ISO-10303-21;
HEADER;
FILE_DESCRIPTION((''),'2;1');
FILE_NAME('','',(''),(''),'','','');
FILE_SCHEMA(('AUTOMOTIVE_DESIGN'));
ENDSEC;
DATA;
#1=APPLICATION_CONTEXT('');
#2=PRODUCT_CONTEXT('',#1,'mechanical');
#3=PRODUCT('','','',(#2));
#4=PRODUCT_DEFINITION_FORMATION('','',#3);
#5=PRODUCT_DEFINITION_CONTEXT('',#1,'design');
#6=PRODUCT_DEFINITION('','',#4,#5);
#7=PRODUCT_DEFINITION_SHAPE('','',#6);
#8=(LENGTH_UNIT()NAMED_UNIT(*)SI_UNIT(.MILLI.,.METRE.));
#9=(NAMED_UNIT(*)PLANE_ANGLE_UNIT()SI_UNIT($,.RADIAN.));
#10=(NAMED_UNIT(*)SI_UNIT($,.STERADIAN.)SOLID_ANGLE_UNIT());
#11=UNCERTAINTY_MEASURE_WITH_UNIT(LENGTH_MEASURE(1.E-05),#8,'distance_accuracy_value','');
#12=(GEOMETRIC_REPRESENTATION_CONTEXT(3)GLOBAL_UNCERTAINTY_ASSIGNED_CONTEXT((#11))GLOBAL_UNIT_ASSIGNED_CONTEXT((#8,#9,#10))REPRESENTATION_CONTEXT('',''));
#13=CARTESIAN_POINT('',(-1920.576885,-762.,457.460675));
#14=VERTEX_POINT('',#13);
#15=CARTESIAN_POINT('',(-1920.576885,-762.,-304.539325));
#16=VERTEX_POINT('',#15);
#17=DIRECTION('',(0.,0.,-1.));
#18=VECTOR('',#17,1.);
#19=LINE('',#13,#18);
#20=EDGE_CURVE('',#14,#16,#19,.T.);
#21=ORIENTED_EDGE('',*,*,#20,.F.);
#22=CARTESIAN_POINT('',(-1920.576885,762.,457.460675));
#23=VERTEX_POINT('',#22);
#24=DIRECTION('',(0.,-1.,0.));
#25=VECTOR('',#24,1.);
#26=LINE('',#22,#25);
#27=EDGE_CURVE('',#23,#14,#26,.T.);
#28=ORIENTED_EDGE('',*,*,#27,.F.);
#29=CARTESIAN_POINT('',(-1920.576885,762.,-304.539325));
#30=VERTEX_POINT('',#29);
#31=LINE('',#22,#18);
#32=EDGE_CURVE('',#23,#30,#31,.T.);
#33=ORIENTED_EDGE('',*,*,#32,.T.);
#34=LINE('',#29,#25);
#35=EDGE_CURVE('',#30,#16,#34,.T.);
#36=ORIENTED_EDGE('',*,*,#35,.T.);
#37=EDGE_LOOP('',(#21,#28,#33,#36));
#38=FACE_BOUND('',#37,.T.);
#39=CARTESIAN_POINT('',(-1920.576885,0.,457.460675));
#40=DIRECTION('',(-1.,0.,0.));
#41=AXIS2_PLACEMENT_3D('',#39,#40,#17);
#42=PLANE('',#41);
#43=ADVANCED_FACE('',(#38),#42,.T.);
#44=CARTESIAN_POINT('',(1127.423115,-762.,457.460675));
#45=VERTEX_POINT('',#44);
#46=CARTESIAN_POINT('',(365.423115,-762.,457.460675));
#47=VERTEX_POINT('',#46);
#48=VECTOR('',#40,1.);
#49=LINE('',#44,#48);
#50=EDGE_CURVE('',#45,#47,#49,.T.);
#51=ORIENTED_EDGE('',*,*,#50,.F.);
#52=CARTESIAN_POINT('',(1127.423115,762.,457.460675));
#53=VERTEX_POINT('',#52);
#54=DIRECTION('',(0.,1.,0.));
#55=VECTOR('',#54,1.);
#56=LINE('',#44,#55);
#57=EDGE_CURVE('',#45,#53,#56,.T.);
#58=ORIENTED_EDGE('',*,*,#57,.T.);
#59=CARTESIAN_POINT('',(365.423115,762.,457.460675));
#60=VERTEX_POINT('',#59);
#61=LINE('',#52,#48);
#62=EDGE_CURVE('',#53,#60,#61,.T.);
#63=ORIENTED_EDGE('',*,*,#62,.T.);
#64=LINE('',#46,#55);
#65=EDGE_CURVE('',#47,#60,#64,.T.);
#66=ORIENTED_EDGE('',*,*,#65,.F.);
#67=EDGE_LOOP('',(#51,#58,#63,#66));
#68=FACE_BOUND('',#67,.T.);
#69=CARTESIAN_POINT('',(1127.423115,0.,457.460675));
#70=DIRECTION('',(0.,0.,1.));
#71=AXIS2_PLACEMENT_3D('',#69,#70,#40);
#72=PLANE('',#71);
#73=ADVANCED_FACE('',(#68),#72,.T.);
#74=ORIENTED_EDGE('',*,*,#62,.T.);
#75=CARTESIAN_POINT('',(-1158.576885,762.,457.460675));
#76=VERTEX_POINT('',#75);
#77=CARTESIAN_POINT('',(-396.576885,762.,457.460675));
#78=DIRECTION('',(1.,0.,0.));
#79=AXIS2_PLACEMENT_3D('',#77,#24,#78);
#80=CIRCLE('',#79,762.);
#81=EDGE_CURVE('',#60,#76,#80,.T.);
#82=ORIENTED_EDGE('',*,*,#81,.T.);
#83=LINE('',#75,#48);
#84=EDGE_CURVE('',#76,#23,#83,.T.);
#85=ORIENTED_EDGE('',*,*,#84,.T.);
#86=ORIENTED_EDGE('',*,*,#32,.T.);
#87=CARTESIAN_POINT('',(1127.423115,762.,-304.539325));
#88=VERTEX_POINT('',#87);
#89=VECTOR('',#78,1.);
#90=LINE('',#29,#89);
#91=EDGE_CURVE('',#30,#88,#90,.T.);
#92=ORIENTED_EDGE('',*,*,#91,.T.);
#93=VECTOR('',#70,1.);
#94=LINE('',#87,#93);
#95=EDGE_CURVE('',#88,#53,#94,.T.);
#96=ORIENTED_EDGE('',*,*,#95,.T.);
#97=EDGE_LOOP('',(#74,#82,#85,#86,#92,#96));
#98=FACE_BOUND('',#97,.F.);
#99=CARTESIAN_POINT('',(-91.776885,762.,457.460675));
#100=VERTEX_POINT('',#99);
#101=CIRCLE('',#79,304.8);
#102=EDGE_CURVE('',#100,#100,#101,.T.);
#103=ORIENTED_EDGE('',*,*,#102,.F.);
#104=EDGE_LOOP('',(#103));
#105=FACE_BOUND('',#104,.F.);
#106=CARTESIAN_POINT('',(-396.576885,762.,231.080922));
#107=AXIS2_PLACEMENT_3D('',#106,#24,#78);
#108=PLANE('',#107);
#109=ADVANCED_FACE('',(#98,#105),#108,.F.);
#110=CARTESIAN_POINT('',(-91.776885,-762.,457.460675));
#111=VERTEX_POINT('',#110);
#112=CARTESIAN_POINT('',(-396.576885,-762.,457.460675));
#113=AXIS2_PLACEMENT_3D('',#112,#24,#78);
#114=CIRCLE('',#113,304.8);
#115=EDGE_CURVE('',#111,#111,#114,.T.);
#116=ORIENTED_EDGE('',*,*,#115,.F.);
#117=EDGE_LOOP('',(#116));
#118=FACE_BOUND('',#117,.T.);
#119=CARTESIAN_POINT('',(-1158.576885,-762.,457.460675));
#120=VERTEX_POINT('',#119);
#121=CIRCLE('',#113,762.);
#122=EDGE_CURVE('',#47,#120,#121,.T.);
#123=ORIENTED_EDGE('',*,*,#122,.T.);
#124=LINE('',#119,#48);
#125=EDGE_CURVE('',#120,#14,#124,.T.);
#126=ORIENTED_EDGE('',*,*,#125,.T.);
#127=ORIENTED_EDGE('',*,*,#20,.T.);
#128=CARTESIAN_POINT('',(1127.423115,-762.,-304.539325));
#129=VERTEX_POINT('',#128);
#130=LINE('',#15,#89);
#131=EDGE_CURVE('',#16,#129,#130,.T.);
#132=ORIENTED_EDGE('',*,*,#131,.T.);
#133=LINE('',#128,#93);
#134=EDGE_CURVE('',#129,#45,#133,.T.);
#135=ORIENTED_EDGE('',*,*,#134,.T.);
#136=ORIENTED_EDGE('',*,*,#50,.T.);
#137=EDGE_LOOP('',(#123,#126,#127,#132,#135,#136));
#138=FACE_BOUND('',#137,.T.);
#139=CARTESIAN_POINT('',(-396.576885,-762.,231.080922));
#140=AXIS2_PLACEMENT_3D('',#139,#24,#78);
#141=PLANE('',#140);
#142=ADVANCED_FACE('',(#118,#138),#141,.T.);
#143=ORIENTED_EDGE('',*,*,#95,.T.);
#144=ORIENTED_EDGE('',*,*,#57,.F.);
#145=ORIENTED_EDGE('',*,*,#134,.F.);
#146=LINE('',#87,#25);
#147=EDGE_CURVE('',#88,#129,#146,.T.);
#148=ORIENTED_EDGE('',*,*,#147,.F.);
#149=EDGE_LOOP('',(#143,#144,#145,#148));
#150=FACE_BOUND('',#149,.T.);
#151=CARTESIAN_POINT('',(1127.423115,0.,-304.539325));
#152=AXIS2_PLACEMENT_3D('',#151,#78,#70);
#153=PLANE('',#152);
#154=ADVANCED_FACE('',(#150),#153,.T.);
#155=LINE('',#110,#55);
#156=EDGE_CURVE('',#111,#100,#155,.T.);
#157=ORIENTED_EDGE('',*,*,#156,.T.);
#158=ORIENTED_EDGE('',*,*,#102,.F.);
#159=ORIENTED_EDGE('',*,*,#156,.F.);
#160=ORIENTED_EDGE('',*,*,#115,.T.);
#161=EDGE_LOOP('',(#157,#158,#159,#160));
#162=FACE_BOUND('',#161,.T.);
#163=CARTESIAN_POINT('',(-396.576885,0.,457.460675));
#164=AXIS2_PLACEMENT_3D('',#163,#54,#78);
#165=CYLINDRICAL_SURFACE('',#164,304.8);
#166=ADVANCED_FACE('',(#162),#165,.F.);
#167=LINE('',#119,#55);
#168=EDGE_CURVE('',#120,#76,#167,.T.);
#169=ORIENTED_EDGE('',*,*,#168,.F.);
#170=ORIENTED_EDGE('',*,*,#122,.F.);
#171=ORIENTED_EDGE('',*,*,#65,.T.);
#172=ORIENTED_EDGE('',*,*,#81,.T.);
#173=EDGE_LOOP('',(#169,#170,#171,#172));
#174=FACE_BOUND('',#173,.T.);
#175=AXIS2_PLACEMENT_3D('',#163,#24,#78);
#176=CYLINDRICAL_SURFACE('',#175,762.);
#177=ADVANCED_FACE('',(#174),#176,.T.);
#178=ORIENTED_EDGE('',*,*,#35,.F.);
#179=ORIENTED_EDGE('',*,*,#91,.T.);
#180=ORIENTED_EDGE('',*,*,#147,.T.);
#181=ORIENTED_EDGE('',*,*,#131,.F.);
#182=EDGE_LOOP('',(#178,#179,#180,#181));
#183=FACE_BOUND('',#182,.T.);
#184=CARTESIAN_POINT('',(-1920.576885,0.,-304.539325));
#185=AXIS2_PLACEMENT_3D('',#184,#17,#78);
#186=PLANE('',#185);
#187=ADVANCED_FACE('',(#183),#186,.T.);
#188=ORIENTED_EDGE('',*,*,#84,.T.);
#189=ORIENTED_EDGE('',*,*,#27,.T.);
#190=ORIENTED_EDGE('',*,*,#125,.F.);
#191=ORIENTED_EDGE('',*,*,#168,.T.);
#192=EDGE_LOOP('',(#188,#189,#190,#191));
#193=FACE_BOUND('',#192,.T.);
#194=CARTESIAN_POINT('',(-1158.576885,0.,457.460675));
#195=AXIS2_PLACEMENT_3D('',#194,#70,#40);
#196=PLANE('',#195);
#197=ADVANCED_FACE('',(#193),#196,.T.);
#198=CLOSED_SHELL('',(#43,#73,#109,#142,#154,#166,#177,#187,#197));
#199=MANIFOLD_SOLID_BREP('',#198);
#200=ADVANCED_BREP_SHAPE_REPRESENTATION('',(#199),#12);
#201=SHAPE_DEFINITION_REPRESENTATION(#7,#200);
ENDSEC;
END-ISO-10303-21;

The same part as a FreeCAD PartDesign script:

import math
import FreeCAD as App
import Part
import Sketcher
from FreeCAD import Vector
Q = App.Units.Quantity

doc = App.newDocument("Part")
body = doc.addObject("PartDesign::Body", "Body")

# Sketch on XZ plane
sketch1 = body.newObject("Sketcher::SketchObject", "Sketch")
sketch1.AttachmentSupport = (doc.getObject("XZ_Plane"), [""])
sketch1.MapMode = "FlatFace"
sketch1.addGeometry(Part.LineSegment(Vector(-1158.576885, 457.460675, 0), Vector(-1920.576885, 457.460675, 0)), False)
sketch1.addGeometry(Part.LineSegment(Vector(-1920.576885, 457.460675, 0), Vector(-1920.576885, -304.539325, 0)), False)
sketch1.addGeometry(Part.LineSegment(Vector(-1920.576885, -304.539325, 0), Vector(1127.423115, -304.539325, 0)), False)
sketch1.addGeometry(Part.LineSegment(Vector(1127.423115, -304.539325, 0), Vector(1127.423115, 457.460675, 0)), False)
sketch1.addGeometry(Part.LineSegment(Vector(1127.423115, 457.460675, 0), Vector(365.423115, 457.460675, 0)), False)
sketch1.addGeometry(Part.ArcOfCircle(Part.Circle(Vector(-396.576885, 457.460675, 0), Vector(0, 0, 1), 762), math.radians(0), math.radians(180)), False)
sketch1.addGeometry(Part.Circle(Vector(-396.576885, 457.460675, 0), Vector(0, 0, 1), 304.8), False)
sketch1.addConstraint(Sketcher.Constraint("Coincident", 0, 2, 1, 1))
sketch1.addConstraint(Sketcher.Constraint("Coincident", 1, 2, 2, 1))
sketch1.addConstraint(Sketcher.Constraint("Coincident", 2, 2, 3, 1))
sketch1.addConstraint(Sketcher.Constraint("Coincident", 3, 2, 4, 1))
sketch1.addConstraint(Sketcher.Constraint("Coincident", 4, 2, 5, 1))
sketch1.addConstraint(Sketcher.Constraint("Coincident", 5, 2, 0, 1))
sketch1.addConstraint(Sketcher.Constraint("Horizontal", 0))
sketch1.addConstraint(Sketcher.Constraint("Vertical", 1))
sketch1.addConstraint(Sketcher.Constraint("Horizontal", 2))
sketch1.addConstraint(Sketcher.Constraint("Vertical", 3))
sketch1.addConstraint(Sketcher.Constraint("Horizontal", 4))
sketch1.addConstraint(Sketcher.Constraint("Coincident", 6, 3, 5, 3))
sketch1.addConstraint(Sketcher.Constraint("Horizontal", 6, 3, 0, 2))
sketch1.addConstraint(Sketcher.Constraint("Horizontal", 0, 2, 3, 2))
sketch1.addConstraint(Sketcher.Constraint("Equal", 0, 4))
sketch1.addConstraint(Sketcher.Constraint("Equal", 4, 1))
sketch1.addConstraint(Sketcher.Constraint("Diameter", 6, Q("24 in")))
sketch1.addConstraint(Sketcher.Constraint("Radius", 5, Q("30 in")))
sketch1.addConstraint(Sketcher.Constraint("DistanceX", 0, 2, 0, 1, Q("30 in")))
sketch1.addConstraint(Sketcher.Constraint("DistanceX", 5, 3, -1, 1, Q("396.576885 mm")))
sketch1.addConstraint(Sketcher.Constraint("DistanceY", -1, 1, 5, 3, Q("457.460675 mm")))
pad1 = body.newObject("PartDesign::Pad", "Pad")
pad1.Profile = sketch1
pad1.Length = Q("60 in")
pad1.Midplane = True

doc.recompute()
